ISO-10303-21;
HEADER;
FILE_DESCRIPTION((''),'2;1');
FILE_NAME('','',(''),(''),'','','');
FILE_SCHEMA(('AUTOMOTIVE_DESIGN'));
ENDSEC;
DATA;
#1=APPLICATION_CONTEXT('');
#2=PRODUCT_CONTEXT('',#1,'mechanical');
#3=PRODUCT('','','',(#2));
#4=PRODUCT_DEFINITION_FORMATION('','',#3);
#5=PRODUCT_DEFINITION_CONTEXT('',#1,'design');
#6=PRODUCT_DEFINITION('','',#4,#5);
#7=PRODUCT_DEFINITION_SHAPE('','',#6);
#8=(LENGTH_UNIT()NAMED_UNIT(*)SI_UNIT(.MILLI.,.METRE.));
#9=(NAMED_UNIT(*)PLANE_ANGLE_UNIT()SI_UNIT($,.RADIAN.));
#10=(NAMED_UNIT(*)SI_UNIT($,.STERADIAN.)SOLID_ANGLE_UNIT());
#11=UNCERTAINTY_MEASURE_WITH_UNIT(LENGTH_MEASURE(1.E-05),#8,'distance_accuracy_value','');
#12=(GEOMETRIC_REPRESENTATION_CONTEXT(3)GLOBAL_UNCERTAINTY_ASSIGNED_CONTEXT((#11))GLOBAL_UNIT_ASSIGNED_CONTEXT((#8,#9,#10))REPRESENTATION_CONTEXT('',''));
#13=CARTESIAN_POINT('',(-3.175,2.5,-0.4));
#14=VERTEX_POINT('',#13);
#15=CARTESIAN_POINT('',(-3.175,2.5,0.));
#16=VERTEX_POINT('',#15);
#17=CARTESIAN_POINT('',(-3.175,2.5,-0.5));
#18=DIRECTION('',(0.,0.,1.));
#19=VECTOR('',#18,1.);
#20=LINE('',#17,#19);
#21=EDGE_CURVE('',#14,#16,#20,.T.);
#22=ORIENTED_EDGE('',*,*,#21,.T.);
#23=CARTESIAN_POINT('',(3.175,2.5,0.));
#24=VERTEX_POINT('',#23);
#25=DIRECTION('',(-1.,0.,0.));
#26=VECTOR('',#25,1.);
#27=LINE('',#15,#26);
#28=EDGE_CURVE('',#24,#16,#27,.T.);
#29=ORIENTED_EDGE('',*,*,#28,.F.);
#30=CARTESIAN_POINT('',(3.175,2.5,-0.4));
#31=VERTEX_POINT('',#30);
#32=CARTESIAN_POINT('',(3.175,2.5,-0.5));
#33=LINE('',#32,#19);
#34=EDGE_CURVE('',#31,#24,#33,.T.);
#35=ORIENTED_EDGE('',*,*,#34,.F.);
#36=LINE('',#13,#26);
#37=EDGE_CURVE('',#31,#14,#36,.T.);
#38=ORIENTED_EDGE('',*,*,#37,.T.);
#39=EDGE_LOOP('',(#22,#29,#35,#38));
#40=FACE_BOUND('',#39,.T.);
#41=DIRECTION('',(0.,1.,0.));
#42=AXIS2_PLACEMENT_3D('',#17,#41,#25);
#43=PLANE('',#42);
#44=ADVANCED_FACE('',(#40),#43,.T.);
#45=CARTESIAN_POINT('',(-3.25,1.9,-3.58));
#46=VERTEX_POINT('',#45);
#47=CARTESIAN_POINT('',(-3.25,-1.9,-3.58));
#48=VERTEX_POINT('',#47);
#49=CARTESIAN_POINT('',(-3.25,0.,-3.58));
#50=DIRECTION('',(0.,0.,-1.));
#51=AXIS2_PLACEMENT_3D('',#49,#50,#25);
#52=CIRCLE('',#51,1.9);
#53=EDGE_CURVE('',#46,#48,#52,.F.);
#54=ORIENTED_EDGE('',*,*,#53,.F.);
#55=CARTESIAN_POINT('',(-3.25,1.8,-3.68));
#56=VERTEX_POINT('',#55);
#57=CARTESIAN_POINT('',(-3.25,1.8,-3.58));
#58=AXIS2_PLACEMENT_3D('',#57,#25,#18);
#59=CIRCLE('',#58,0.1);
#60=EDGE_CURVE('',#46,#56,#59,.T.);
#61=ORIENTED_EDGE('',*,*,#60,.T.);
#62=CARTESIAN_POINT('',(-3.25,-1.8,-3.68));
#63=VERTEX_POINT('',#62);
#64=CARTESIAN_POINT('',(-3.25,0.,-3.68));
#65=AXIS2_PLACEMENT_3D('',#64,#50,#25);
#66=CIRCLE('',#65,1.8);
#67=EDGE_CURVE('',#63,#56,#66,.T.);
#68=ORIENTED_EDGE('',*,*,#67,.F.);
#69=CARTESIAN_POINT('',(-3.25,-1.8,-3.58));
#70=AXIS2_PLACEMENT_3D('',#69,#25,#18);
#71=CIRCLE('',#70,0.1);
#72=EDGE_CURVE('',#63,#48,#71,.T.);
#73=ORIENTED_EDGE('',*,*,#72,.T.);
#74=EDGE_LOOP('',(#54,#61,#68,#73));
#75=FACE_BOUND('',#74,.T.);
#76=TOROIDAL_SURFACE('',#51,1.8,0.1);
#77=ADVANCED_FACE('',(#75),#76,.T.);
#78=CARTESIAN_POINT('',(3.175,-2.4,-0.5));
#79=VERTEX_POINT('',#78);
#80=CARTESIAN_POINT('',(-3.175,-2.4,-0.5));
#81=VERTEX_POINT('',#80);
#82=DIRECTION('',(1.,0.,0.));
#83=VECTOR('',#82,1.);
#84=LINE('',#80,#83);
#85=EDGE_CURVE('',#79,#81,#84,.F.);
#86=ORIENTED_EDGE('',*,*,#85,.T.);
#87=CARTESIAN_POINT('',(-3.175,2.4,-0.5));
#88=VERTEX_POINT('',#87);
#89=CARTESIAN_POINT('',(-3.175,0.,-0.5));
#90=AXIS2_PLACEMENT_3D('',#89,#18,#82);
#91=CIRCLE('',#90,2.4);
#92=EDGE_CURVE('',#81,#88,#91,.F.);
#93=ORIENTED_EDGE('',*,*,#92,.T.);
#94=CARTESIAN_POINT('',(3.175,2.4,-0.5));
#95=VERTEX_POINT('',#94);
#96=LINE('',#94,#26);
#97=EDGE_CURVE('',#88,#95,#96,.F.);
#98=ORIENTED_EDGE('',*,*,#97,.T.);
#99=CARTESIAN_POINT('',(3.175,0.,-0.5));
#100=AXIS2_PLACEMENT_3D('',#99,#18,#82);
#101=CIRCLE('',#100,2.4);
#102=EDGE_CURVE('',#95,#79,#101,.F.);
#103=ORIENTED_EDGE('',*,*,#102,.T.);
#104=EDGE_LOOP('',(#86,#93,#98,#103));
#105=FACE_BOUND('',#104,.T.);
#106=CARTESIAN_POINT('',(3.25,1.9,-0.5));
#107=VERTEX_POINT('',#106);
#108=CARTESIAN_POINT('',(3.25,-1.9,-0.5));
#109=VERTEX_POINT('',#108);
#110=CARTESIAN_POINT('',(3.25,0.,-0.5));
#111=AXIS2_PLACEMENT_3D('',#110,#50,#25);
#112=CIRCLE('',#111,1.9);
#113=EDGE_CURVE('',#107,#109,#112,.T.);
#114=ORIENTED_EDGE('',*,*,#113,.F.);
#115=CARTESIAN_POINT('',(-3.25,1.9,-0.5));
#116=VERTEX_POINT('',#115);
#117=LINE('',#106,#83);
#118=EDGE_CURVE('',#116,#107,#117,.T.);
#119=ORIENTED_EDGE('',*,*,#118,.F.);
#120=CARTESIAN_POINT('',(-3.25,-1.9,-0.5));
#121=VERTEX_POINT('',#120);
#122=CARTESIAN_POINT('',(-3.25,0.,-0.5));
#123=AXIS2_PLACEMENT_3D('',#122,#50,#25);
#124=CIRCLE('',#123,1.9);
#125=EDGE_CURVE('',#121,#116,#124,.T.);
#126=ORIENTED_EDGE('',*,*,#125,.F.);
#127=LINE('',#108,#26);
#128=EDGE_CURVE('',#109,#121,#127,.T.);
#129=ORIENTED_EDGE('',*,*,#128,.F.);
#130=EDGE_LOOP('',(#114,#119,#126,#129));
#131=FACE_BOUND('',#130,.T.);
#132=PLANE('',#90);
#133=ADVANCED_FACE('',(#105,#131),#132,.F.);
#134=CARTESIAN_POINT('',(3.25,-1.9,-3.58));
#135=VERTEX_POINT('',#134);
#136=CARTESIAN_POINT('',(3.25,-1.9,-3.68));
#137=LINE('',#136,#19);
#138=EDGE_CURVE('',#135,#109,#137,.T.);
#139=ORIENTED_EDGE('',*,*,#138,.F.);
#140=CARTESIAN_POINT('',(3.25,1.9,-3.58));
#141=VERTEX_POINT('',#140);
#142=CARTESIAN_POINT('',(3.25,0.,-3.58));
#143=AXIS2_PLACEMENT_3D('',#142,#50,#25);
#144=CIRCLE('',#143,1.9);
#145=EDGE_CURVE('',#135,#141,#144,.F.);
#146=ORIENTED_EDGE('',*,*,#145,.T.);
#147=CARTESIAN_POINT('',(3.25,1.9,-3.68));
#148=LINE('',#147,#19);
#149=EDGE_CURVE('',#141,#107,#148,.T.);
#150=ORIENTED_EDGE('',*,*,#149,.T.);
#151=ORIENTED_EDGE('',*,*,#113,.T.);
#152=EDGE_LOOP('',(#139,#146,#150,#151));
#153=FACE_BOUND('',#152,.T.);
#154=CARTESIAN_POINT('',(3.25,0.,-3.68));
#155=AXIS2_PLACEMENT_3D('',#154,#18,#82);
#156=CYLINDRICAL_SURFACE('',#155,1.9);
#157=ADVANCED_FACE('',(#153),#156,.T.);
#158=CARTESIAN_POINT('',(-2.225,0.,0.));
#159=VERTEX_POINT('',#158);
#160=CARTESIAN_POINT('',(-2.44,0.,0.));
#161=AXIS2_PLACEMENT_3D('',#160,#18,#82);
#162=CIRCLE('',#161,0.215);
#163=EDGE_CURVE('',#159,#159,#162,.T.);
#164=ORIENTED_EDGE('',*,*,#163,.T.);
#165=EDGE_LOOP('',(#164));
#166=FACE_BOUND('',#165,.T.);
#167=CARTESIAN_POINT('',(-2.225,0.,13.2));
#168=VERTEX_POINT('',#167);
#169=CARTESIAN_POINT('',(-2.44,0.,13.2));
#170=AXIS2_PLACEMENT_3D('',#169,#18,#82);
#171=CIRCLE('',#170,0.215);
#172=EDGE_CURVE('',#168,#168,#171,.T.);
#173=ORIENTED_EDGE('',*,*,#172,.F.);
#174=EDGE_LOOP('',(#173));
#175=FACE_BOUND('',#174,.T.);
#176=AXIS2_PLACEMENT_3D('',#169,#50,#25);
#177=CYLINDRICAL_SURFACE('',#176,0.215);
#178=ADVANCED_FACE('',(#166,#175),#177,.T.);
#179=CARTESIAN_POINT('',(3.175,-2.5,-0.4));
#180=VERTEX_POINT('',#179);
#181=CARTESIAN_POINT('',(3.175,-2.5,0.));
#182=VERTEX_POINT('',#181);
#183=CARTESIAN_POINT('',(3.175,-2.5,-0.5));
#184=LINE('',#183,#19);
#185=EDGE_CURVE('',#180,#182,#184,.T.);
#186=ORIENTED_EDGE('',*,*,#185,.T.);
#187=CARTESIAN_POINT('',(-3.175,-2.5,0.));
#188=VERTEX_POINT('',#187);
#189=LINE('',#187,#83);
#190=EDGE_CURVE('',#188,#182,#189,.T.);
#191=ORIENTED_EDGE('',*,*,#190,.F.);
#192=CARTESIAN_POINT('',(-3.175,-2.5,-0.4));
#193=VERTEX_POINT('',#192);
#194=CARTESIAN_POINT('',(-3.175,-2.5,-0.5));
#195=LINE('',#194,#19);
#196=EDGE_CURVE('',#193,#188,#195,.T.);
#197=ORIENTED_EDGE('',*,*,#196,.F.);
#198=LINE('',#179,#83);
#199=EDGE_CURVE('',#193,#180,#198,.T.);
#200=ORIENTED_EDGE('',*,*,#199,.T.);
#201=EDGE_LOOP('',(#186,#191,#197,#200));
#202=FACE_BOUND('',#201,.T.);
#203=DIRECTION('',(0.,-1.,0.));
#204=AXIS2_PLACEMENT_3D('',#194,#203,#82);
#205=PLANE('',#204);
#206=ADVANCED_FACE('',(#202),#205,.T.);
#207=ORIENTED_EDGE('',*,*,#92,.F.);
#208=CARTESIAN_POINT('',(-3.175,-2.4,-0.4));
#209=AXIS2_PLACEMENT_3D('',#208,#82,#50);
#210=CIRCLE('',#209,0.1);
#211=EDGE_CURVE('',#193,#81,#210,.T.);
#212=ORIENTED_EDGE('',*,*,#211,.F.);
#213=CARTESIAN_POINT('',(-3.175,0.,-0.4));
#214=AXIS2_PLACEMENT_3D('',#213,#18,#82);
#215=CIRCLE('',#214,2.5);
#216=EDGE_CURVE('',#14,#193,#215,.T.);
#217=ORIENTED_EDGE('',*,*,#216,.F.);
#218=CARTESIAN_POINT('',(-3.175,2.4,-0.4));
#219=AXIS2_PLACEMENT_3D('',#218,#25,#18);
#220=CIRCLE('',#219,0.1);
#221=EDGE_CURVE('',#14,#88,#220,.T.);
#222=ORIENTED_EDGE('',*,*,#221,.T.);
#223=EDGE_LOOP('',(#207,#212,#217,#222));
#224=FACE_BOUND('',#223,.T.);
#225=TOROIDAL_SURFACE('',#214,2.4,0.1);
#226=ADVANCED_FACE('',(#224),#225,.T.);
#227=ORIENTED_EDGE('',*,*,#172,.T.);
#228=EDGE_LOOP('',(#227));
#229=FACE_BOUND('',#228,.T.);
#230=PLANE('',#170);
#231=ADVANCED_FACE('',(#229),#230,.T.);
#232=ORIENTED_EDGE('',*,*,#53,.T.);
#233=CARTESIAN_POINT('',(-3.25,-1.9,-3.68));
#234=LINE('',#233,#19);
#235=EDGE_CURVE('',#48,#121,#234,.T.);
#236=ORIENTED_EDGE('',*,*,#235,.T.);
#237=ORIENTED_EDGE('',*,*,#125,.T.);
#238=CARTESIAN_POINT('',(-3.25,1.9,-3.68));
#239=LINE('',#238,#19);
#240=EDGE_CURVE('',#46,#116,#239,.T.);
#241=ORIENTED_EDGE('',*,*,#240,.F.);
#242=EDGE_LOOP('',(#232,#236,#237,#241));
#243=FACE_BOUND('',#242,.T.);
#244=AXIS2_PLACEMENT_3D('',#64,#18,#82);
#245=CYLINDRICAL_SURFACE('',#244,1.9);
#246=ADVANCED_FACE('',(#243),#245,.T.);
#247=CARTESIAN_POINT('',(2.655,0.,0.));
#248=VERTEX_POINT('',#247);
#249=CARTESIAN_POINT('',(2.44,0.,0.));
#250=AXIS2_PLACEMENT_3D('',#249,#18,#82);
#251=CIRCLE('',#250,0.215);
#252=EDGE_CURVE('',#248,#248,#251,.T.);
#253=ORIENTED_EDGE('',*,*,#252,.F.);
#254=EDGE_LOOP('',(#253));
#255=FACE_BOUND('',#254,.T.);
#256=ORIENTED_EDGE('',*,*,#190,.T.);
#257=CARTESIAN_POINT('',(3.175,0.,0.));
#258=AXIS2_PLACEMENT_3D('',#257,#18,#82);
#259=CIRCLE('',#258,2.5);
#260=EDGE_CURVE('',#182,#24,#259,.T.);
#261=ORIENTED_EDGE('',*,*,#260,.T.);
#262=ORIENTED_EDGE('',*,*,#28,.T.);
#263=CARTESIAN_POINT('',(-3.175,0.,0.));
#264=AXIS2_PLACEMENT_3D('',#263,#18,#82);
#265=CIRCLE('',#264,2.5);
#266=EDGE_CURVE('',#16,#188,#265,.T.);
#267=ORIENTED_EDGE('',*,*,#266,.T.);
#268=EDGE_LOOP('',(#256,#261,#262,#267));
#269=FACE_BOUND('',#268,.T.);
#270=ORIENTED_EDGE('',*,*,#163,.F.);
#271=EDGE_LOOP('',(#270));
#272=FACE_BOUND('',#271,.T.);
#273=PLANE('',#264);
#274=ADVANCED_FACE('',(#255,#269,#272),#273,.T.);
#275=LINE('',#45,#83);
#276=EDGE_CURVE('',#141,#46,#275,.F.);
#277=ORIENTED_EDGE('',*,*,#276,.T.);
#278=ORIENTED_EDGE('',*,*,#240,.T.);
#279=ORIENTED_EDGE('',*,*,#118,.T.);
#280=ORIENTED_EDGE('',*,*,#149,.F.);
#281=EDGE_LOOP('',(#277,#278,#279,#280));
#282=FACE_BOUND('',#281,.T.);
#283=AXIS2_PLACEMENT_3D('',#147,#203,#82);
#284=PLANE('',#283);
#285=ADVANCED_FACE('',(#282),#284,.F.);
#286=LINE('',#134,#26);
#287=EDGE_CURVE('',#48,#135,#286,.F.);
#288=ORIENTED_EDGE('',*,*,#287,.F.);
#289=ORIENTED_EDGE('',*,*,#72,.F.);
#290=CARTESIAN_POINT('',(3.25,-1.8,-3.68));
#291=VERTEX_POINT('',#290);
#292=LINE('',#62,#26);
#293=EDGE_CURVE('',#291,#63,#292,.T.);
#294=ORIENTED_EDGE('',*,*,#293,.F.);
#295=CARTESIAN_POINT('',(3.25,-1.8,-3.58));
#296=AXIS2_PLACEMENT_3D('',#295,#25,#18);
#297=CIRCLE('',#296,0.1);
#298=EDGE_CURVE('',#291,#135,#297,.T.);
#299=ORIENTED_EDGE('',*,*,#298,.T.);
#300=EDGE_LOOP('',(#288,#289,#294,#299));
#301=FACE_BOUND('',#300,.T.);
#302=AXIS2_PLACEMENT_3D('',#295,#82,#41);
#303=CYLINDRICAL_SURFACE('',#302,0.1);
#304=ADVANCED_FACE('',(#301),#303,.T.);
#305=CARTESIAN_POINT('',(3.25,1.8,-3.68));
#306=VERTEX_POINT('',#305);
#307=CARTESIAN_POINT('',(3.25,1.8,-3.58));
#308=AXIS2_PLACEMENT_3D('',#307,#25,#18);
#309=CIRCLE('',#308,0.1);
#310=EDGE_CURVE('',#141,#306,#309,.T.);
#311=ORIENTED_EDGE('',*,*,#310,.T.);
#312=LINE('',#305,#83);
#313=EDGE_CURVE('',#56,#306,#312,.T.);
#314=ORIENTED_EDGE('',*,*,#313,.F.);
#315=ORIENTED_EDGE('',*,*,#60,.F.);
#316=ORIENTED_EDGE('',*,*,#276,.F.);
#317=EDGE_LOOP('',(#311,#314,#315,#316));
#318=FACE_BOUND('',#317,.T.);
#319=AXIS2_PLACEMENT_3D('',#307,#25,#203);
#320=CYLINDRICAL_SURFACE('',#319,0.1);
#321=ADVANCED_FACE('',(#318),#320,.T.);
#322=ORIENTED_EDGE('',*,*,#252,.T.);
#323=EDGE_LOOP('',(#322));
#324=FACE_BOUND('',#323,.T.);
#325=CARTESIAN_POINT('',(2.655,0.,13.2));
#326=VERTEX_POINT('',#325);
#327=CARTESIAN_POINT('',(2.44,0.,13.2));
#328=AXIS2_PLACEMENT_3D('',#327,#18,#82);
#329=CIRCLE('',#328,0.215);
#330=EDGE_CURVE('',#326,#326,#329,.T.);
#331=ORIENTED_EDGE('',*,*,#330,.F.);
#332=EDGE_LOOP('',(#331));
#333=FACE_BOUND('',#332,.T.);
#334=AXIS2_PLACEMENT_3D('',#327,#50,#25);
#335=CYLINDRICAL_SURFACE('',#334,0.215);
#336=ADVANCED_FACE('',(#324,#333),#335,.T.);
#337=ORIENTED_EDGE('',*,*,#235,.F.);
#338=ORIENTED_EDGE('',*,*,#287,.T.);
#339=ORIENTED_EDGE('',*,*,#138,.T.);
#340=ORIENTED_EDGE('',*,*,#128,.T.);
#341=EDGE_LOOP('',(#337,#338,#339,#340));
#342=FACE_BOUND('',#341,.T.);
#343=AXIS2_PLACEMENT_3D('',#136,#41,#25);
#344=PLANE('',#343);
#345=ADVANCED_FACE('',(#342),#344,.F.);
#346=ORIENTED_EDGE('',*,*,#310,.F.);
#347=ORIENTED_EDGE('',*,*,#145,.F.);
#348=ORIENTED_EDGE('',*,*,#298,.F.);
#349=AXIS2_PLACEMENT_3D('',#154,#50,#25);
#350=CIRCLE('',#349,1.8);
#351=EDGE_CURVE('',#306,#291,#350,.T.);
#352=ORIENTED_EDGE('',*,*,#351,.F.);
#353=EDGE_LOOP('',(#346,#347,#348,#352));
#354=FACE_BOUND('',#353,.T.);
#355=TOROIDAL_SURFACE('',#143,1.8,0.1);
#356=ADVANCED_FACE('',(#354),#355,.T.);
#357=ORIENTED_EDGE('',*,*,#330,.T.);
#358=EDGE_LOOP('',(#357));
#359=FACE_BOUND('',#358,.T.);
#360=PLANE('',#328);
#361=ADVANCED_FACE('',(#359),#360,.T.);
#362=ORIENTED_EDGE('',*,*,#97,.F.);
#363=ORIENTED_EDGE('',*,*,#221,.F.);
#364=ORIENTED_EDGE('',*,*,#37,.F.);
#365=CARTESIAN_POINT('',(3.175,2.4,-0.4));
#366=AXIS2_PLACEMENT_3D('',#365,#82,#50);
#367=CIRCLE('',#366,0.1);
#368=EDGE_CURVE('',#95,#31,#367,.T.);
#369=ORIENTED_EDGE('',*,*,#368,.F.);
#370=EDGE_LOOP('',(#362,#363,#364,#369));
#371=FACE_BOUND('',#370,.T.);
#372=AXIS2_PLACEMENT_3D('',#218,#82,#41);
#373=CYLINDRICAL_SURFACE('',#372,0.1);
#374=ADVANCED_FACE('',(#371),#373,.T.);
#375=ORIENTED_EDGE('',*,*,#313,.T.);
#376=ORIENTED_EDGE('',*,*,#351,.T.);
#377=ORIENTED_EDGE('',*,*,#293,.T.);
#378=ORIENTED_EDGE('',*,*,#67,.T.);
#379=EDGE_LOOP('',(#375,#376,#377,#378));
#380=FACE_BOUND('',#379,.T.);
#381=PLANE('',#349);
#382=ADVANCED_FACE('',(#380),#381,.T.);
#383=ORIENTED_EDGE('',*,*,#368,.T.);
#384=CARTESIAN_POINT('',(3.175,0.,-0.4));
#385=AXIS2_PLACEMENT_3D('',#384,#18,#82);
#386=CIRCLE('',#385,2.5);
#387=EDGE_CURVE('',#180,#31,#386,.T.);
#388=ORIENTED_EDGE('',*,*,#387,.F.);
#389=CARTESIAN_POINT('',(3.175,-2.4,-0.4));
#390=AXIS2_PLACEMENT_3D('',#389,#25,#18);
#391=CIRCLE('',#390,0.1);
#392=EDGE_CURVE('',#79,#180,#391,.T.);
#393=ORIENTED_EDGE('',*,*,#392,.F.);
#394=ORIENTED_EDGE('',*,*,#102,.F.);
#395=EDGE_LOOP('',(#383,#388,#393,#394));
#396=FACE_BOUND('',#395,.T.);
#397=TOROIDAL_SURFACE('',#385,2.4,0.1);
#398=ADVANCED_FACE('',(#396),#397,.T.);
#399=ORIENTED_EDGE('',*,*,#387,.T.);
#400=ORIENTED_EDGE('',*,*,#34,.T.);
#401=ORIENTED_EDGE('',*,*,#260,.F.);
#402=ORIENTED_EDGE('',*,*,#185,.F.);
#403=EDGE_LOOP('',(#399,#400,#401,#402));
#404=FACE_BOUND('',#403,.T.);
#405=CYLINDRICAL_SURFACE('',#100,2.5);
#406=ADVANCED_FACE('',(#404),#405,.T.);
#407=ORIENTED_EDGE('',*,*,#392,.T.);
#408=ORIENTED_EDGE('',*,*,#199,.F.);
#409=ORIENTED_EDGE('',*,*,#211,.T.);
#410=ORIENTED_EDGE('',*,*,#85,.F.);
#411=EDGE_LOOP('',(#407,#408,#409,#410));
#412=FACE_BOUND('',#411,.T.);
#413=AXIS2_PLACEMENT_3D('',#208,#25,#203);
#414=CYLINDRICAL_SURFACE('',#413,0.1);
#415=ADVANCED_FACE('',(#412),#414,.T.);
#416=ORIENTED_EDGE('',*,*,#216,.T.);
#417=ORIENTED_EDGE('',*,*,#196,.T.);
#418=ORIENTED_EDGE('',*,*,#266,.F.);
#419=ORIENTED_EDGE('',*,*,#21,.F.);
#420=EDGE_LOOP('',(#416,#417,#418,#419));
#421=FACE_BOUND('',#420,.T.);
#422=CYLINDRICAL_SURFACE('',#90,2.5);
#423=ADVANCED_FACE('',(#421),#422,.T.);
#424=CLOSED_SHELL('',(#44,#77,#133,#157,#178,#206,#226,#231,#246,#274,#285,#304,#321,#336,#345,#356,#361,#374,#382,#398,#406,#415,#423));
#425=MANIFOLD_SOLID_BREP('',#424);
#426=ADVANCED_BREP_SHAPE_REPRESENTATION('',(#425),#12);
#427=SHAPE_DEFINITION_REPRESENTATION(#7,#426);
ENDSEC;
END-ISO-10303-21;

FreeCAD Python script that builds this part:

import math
import FreeCAD as App
import Part
import Sketcher

V = App.Vector


def edges_at(feature, points):
    """Names of the edges that pass closest to the given points."""
    edges = feature.Shape.Edges
    near = lambda p: min(range(len(edges)), key=lambda i: edges[i].distToShape(Part.Vertex(*p))[0])
    return sorted({f"Edge{near(p) + 1}" for p in points})

doc = App.newDocument("Part")
body = doc.addObject("PartDesign::Body", "Body")

sketch1 = doc.addObject("Sketcher::SketchObject", "Sketch")
body.addObject(sketch1)
sketch1.AttachmentSupport = (doc.XY_Plane, [""])
sketch1.MapMode = "FlatFace"
sketch1.addGeometry([
    Part.LineSegment(V(3.2, 2.5, 0), V(-3.2, 2.5, 0)),
    Part.ArcOfCircle(Part.Circle(V(-3.2, 0, 0), V(0, 0, 1), 2.5), math.radians(90), math.radians(270)),
    Part.LineSegment(V(-3.2, -2.5, 0), V(3.2, -2.5, 0)),
    Part.ArcOfCircle(Part.Circle(V(3.2, 0, 0), V(0, 0, 1), 2.5), math.radians(-90), math.radians(90)),
], False)
sketch1.addConstraint([
    Sketcher.Constraint("Tangent", 0, 2, 1, 1),
    Sketcher.Constraint("Tangent", 1, 2, 2, 1),
    Sketcher.Constraint("Tangent", 2, 2, 3, 1),
    Sketcher.Constraint("Tangent", 3, 2, 0, 1),
    Sketcher.Constraint("Horizontal", 0),
    Sketcher.Constraint("Horizontal", 2),
    Sketcher.Constraint("Symmetric", 1, 3, 3, 3, -1, 1),
    Sketcher.Constraint("Radius", 1, 2.5),
    Sketcher.Constraint("DistanceX", 0, 2, 0, 1, 6.35),
])
pad1 = doc.addObject("PartDesign::Pad", "Pad")
body.addObject(pad1)
pad1.Profile = sketch1
pad1.Length = 0.5
pad1.Reversed = True

sketch2 = doc.addObject("Sketcher::SketchObject", "Sketch001")
body.addObject(sketch2)
sketch2.AttachmentSupport = (doc.XY_Plane, [""])
sketch2.MapMode = "FlatFace"
sketch2.AttachmentOffset = App.Placement(V(0, 0, -0.5), App.Rotation())
sketch2.addGeometry([
    Part.LineSegment(V(-3.2, 1.9, 0), V(3.2, 1.9, 0)),
    Part.ArcOfCircle(Part.Circle(V(3.2, 0, 0), V(0, 0, 1), 1.9), math.radians(-90), math.radians(90)),
    Part.LineSegment(V(3.2, -1.9, 0), V(-3.2, -1.9, 0)),
    Part.ArcOfCircle(Part.Circle(V(-3.2, 0, 0), V(0, 0, 1), 1.9), math.radians(90), math.radians(270)),
], False)
sketch2.addConstraint([
    Sketcher.Constraint("Tangent", 0, 2, 1, 2),
    Sketcher.Constraint("Tangent", 1, 1, 2, 1),
    Sketcher.Constraint("Tangent", 2, 2, 3, 2),
    Sketcher.Constraint("Tangent", 3, 1, 0, 1),
    Sketcher.Constraint("Horizontal", 0),
    Sketcher.Constraint("Horizontal", 2),
    Sketcher.Constraint("Symmetric", 1, 3, 3, 3, -1, 1),
    Sketcher.Constraint("Radius", 1, 1.9),
    Sketcher.Constraint("DistanceX", 0, 1, 0, 2, 6.5),
])
pad2 = doc.addObject("PartDesign::Pad", "Pad001")
body.addObject(pad2)
pad2.Profile = sketch2
pad2.Length = 3.18
pad2.Reversed = True

sketch3 = doc.addObject("Sketcher::SketchObject", "Sketch002")
body.addObject(sketch3)
sketch3.AttachmentSupport = (doc.XY_Plane, [""])
sketch3.MapMode = "FlatFace"
sketch3.addGeometry([
    Part.Circle(V(-2.44, 0, 0), V(0, 0, 1), 0.21),
    Part.Circle(V(2.44, 0, 0), V(0, 0, 1), 0.21),
], False)
sketch3.addConstraint([
    Sketcher.Constraint("Equal", 0, 1),
    Sketcher.Constraint("Symmetric", 0, 3, 1, 3, -1, 1),
    Sketcher.Constraint("PointOnObject", 0, 3, -1),
    Sketcher.Constraint("Diameter", 0, 0.43),
    Sketcher.Constraint("DistanceX", 0, 3, -1, 1, 2.44),
])
pad3 = doc.addObject("PartDesign::Pad", "Pad002")
body.addObject(pad3)
pad3.Profile = sketch3
pad3.Length = 13.2
doc.recompute()

fillet = doc.addObject("PartDesign::Fillet", "Fillet")
body.addObject(fillet)
fillet.Base = (pad3, edges_at(pad3, [
    (5.15, 0, -3.68),
    (0, -1.9, -3.68),
    (-5.15, 0, -3.68),
    (0, 1.9, -3.68),
]))
fillet.Radius = 0.1
doc.recompute()

fillet2 = doc.addObject("PartDesign::Fillet", "Fillet001")
body.addObject(fillet2)
fillet2.Base = (fillet, edges_at(fillet, [
    (5.675, 0, -0.5),
    (0, 2.5, -0.5),
    (-5.675, 0, -0.5),
    (0, -2.5, -0.5),
]))
fillet2.Radius = 0.1

doc.recompute()
